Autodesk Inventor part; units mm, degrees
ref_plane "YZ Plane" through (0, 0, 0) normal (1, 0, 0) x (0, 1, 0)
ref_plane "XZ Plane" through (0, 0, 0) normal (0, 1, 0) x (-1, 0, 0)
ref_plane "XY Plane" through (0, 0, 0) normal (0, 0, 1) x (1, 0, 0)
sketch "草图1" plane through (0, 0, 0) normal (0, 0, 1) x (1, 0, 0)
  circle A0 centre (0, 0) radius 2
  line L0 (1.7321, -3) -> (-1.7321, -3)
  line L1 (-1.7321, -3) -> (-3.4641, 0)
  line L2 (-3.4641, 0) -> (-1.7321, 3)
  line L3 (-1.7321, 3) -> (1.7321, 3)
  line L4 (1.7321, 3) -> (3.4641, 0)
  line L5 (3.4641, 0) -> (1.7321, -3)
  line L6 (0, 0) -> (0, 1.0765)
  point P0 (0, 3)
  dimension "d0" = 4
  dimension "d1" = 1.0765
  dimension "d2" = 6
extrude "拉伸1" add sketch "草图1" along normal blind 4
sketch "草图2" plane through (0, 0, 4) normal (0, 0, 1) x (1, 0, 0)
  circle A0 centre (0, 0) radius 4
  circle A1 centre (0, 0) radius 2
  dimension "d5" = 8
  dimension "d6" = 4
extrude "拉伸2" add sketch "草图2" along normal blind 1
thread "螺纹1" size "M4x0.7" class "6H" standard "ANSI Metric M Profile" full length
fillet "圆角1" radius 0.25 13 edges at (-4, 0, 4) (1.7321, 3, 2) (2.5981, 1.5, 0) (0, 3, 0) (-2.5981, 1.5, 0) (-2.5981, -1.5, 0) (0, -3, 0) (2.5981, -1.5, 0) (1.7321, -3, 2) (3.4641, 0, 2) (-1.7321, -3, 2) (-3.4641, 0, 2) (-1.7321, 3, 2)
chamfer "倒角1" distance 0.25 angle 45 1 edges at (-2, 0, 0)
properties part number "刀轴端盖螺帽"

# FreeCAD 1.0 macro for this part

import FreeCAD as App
import Part
import Sketcher

V = App.Vector
Q = App.Units.Quantity


def edges_at(feature, points):
    """Names of the edges that pass closest to the given points."""
    edges = feature.Shape.Edges
    near = lambda p: min(range(len(edges)), key=lambda i: edges[i].distToShape(Part.Vertex(*p))[0])
    return sorted({f"Edge{near(p) + 1}" for p in points})

doc = App.newDocument("Part")
params = doc.addObject("Spreadsheet::Sheet", "Params")
for row, (alias, value) in enumerate([
    ("sketch1_diameter", "4 mm"),
    ("pad1_length", "4 mm"),
    ("sketch2_diameter", "8 mm"),
    ("sketch2_diameter2", "4 mm"),
    ("pad2_length", "1 mm"),
    ("fillet_radius", "0.25 mm"),
    ("chamfer_size", "0.25 mm"),
], start=1):
    params.set(f"A{row}", alias)
    params.set(f"B{row}", "=" + value)
    params.setAlias(f"B{row}", alias)

body = doc.addObject("PartDesign::Body", "Body")

# Sketch on XY plane
sketch1 = doc.addObject("Sketcher::SketchObject", "Sketch")
body.addObject(sketch1)
sketch1.AttachmentSupport = (doc.XY_Plane, [""])
sketch1.MapMode = "FlatFace"
sketch1.addGeometry(Part.LineSegment(V(-1.7, -3, 0), V(1.7, -3, 0)), False)
sketch1.addGeometry(Part.LineSegment(V(1.7, -3, 0), V(3.5, 0, 0)), False)
sketch1.addGeometry(Part.LineSegment(V(3.5, 0, 0), V(1.7, 3, 0)), False)
sketch1.addGeometry(Part.LineSegment(V(1.7, 3, 0), V(-1.7, 3, 0)), False)
sketch1.addGeometry(Part.LineSegment(V(-1.7, 3, 0), V(-3.5, 0, 0)), False)
sketch1.addGeometry(Part.LineSegment(V(-3.5, 0, 0), V(-1.7, -3, 0)), False)
sketch1.addGeometry(Part.Circle(V(0, 0, 0), V(0, 0, 1), 2), False)
sketch1.addConstraint(Sketcher.Constraint("Coincident", 0, 2, 1, 1))
sketch1.addConstraint(Sketcher.Constraint("Coincident", 1, 2, 2, 1))
sketch1.addConstraint(Sketcher.Constraint("Coincident", 2, 2, 3, 1))
sketch1.addConstraint(Sketcher.Constraint("Coincident", 3, 2, 4, 1))
sketch1.addConstraint(Sketcher.Constraint("Coincident", 4, 2, 5, 1))
sketch1.addConstraint(Sketcher.Constraint("Coincident", 5, 2, 0, 1))
sketch1.addConstraint(Sketcher.Constraint("Horizontal", 0))
sketch1.addConstraint(Sketcher.Constraint("Horizontal", 3))
sketch1.addConstraint(Sketcher.Constraint("Coincident", 6, 3, -1, 1))
sketch1.addConstraint(Sketcher.Constraint("Symmetric", 0, 2, 3, 2, -1, 1))
sketch1.addConstraint(Sketcher.Constraint("Symmetric", 1, 2, 4, 2, -1, 1))
sketch1.addConstraint(Sketcher.Constraint("PointOnObject", 1, 2, -1))
sketch1.addConstraint(Sketcher.Constraint("Parallel", 2, 5))
sketch1.addConstraint(Sketcher.Constraint("Vertical", 0, 2, 2, 2))
sketch1.addConstraint(Sketcher.Constraint("Diameter", 6, 4.0))
sketch1.addConstraint(Sketcher.Constraint("DistanceY", 0, 2, 2, 2, 6.0))
sketch1.addConstraint(Sketcher.Constraint("Angle", 1, Q("60.0007 deg")))
sketch1.addConstraint(Sketcher.Constraint("DistanceX", 0, 1, 0, 2, 3.4642))
sketch1.setExpression("Constraints[14]", "Params.sketch1_diameter")
pad1 = doc.addObject("PartDesign::Pad", "Pad")
body.addObject(pad1)
pad1.Profile = sketch1
pad1.setExpression("Length", "Params.pad1_length")

# Sketch on XY plane
sketch2 = doc.addObject("Sketcher::SketchObject", "Sketch001")
body.addObject(sketch2)
sketch2.AttachmentSupport = (doc.XY_Plane, [""])
sketch2.MapMode = "FlatFace"
sketch2.AttachmentOffset = App.Placement(V(0, 0, 4), App.Rotation())
sketch2.addGeometry(Part.Circle(V(0, 0, 0), V(0, 0, 1), 4), False)
sketch2.addGeometry(Part.Circle(V(0, 0, 0), V(0, 0, 1), 2), False)
sketch2.addConstraint(Sketcher.Constraint("Coincident", 0, 3, -1, 1))
sketch2.addConstraint(Sketcher.Constraint("Coincident", 1, 3, -1, 1))
sketch2.addConstraint(Sketcher.Constraint("Diameter", 0, 8.0))
sketch2.addConstraint(Sketcher.Constraint("Diameter", 1, 4.0))
sketch2.setExpression("Constraints[2]", "Params.sketch2_diameter")
sketch2.setExpression("Constraints[3]", "Params.sketch2_diameter2")
pad2 = doc.addObject("PartDesign::Pad", "Pad001")
body.addObject(pad2)
pad2.Profile = sketch2
pad2.setExpression("Length", "Params.pad2_length")
doc.recompute()

fillet = doc.addObject("PartDesign::Fillet", "Fillet")
body.addObject(fillet)
fillet.Base = (pad2, edges_at(pad2, [
    (-4, 0, 4),
    (1.732, 3, 2),
    (2.598, 1.5, 0),
    (0, 3, 0),
    (-2.598, 1.5, 0),
    (-2.598, -1.5, 0),
    (0, -3, 0),
    (2.598, -1.5, 0),
    (1.732, -3, 2),
    (3.464, 0, 2),
    (-1.732, -3, 2),
    (-3.464, 0, 2),
    (-1.732, 3, 2),
]))
fillet.setExpression("Radius", "Params.fillet_radius")
doc.recompute()

chamfer = doc.addObject("PartDesign::Chamfer", "Chamfer")
body.addObject(chamfer)
chamfer.Base = (fillet, edges_at(fillet, [(-2, 0, 0)]))
chamfer.setExpression("Size", "Params.chamfer_size")

doc.recompute()
